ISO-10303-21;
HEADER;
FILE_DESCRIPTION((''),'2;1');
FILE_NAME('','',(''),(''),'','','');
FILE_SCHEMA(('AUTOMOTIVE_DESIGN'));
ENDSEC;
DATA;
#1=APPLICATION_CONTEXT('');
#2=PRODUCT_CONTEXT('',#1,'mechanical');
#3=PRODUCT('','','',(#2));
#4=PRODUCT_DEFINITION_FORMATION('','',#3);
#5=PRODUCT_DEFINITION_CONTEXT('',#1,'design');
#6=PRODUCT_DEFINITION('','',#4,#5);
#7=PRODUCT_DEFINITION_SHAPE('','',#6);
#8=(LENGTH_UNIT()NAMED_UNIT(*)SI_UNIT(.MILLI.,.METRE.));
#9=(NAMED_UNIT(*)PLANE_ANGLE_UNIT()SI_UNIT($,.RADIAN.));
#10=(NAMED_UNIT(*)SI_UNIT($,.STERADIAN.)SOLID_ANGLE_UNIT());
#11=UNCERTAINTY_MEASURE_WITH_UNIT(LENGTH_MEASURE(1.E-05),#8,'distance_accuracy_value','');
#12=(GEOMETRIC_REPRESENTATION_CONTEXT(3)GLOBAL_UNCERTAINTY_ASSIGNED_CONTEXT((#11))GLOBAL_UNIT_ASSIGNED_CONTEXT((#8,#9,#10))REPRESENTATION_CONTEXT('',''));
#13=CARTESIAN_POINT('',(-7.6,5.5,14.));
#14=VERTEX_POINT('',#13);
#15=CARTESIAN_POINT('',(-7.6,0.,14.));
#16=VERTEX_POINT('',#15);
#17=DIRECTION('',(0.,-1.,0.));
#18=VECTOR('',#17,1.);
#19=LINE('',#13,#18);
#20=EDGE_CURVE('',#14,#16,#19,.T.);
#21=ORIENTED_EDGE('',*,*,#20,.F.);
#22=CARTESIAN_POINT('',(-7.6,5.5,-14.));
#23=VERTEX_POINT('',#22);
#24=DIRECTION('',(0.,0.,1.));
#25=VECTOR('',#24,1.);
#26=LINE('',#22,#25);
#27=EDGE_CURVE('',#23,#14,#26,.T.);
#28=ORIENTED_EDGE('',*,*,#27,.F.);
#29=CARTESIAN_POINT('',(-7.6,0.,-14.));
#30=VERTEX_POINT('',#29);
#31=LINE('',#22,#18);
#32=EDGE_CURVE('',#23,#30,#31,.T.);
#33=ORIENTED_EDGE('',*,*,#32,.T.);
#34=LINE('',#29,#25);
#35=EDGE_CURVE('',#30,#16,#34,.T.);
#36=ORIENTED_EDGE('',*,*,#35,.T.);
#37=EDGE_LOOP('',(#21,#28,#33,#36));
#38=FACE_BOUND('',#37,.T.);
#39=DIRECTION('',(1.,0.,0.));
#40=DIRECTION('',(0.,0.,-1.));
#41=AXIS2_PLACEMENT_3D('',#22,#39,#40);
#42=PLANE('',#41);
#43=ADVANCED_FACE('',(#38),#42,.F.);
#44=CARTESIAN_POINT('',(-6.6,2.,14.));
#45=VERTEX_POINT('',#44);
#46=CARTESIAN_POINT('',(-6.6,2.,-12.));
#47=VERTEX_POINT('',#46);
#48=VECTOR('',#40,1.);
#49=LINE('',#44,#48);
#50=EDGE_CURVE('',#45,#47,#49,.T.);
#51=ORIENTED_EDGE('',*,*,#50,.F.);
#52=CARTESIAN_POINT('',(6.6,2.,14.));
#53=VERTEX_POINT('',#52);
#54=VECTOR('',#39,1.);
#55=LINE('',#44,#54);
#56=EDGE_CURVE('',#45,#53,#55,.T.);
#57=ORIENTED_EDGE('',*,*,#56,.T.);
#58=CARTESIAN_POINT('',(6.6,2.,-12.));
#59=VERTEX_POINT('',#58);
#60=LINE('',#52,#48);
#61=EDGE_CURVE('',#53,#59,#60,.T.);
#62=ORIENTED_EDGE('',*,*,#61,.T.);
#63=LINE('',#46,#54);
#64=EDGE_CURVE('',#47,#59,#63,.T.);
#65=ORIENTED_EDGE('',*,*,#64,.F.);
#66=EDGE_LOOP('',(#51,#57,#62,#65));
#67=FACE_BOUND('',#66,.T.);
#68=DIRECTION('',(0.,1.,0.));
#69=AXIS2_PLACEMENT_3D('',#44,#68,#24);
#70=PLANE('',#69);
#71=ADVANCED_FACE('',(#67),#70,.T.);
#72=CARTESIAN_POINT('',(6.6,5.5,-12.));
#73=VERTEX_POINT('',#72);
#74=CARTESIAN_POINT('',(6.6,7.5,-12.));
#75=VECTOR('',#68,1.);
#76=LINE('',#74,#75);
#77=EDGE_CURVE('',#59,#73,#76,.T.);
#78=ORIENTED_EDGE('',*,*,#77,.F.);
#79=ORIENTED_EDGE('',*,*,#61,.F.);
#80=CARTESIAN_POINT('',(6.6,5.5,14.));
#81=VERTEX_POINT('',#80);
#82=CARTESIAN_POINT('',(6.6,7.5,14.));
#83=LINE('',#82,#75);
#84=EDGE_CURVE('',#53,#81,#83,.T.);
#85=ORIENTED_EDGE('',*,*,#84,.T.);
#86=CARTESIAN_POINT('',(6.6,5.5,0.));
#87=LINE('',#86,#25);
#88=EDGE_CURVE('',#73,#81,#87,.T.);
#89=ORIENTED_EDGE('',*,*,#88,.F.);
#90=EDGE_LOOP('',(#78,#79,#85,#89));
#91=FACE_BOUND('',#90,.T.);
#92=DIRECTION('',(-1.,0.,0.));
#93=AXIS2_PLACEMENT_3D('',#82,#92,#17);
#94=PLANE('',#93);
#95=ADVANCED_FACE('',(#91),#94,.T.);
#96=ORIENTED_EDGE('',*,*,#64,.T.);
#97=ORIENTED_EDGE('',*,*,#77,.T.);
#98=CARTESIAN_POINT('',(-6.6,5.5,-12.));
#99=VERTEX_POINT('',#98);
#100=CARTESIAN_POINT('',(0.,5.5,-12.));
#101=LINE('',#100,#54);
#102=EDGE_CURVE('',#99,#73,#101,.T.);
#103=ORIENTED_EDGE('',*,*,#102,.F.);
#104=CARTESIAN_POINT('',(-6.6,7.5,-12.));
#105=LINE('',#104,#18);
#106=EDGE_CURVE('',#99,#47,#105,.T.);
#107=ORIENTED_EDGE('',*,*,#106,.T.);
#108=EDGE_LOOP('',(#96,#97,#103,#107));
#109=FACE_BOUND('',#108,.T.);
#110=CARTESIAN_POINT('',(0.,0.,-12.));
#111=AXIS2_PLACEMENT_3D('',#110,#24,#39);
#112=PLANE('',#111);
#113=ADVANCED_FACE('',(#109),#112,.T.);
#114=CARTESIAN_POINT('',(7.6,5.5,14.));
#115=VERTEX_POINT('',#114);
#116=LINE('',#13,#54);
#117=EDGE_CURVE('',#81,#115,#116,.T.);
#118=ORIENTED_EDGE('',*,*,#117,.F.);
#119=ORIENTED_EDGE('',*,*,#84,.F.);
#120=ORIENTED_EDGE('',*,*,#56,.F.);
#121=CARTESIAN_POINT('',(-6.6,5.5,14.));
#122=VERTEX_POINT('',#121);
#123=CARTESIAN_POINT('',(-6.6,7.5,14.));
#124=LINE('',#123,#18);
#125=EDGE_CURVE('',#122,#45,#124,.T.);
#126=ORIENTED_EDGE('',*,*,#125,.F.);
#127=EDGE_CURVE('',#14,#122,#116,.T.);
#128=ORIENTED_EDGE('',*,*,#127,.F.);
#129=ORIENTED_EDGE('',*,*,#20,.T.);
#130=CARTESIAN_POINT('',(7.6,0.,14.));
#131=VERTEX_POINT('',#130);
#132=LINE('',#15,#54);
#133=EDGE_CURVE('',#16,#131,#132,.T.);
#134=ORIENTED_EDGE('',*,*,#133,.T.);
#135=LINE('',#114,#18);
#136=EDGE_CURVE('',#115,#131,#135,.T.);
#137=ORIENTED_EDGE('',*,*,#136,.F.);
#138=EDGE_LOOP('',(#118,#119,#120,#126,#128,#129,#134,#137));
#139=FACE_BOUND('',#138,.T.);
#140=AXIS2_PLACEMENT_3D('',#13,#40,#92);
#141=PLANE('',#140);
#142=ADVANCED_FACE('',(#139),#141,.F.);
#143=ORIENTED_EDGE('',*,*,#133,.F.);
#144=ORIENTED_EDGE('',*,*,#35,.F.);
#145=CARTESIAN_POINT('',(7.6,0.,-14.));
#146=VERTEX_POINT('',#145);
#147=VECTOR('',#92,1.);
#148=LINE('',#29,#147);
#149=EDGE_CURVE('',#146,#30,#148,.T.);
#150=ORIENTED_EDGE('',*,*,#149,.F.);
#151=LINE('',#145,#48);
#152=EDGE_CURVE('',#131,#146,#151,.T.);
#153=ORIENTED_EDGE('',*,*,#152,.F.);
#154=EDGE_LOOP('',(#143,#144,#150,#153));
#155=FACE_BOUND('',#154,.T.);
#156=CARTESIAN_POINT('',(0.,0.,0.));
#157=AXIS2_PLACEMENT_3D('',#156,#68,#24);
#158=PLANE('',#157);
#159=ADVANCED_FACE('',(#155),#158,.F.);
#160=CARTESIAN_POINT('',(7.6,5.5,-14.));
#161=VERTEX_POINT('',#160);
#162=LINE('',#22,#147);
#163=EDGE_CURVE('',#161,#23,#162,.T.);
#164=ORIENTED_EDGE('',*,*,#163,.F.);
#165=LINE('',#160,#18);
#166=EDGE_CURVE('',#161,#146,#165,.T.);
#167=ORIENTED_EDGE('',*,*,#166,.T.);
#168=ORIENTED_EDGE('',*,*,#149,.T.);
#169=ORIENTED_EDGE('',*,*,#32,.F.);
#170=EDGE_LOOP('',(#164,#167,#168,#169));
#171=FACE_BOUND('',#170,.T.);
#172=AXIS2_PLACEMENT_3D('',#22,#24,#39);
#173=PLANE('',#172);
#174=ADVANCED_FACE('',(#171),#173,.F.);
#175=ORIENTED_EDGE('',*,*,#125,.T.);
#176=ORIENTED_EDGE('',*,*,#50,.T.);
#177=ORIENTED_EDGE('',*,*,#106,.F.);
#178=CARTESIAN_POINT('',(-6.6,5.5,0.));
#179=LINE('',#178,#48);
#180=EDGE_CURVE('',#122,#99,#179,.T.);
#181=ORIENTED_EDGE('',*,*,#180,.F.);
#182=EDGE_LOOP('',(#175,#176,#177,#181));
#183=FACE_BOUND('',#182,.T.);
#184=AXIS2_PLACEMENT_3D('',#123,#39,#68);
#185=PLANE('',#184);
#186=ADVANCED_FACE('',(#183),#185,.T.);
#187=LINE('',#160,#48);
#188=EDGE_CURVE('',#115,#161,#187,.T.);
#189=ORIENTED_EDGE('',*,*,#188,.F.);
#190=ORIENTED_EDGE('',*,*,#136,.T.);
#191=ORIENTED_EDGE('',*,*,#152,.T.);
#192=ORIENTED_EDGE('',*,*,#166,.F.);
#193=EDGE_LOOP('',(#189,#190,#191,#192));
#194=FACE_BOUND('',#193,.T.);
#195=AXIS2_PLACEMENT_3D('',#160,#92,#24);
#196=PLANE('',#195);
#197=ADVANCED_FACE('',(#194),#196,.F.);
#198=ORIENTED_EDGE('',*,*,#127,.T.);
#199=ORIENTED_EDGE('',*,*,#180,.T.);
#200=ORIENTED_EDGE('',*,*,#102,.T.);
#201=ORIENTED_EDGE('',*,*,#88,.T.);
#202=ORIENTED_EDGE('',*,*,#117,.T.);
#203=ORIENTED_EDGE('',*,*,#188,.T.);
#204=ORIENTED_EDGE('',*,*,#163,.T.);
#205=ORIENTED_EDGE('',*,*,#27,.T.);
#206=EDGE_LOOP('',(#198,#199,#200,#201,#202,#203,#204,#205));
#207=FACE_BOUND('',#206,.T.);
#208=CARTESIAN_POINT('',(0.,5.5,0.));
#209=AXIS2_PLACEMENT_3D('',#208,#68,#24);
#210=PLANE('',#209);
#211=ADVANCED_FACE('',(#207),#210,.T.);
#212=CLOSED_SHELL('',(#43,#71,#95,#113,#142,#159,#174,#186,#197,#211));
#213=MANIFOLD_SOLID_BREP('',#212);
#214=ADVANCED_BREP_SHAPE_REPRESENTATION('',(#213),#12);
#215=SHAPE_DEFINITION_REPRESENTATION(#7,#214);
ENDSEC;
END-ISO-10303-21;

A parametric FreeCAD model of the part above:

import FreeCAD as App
import Part
import Sketcher


def add_polygon(sketch, points):
    """Adds a closed chain of lines whose ends are joined by coincident constraints."""
    first, n = sketch.GeometryCount, len(points)
    for a, b in zip(points, points[1:] + points[:1]):
        sketch.addGeometry(Part.LineSegment(App.Vector(*a, 0), App.Vector(*b, 0)), False)
    for i in range(n):
        sketch.addConstraint(Sketcher.Constraint("Coincident", first + i, 2, first + (i + 1) % n, 1))

doc = App.newDocument("Part")
body = doc.addObject("PartDesign::Body", "Body")

sketch1 = doc.addObject("Sketcher::SketchObject", "Sketch")
body.addObject(sketch1)
sketch1.AttachmentSupport = (doc.XZ_Plane, [""])
sketch1.MapMode = "FlatFace"
add_polygon(sketch1, [(-8, -14), (-8, 14), (8, 14), (8, -14)])
sketch1.addConstraint([
    Sketcher.Constraint("Vertical", 0),
    Sketcher.Constraint("Horizontal", 1),
    Sketcher.Constraint("Vertical", 2),
    Sketcher.Constraint("Horizontal", 3),
    Sketcher.Constraint("Symmetric", 0, 2, 2, 2, -1, 1),
    Sketcher.Constraint("DistanceY", 0, 1, 0, 2, 28.0),
    Sketcher.Constraint("DistanceX", 1, 1, 1, 2, 15.2),
])
pad1 = doc.addObject("PartDesign::Pad", "Pad")
body.addObject(pad1)
pad1.Profile = sketch1
pad1.Length = 5.5
pad1.Reversed = True

sketch2 = doc.addObject("Sketcher::SketchObject", "Sketch001")
body.addObject(sketch2)
sketch2.AttachmentSupport = (doc.XY_Plane, [""])
sketch2.MapMode = "FlatFace"
add_polygon(sketch2, [(-7, 8), (-7, 2), (7, 2), (7, 8)])
sketch2.addConstraint([
    Sketcher.Constraint("Vertical", 0),
    Sketcher.Constraint("Horizontal", 1),
    Sketcher.Constraint("Vertical", 2),
    Sketcher.Constraint("Horizontal", 3),
    Sketcher.Constraint("DistanceX", 1, 1, 1, 2, 13.2),
    Sketcher.Constraint("DistanceY", 0, 2, 0, 1, 5.5),
    Sketcher.Constraint("DistanceY", -1, 1, 0, 2, 2.0),
    Sketcher.Constraint("DistanceX", 0, 2, -1, 1, 6.6),
])
pocket1 = doc.addObject("PartDesign::Pocket", "Pocket")
body.addObject(pocket1)
pocket1.Profile = sketch2
pocket1.Type = "TwoLengths"
pocket1.Length = 14
pocket1.Length2 = 12
pocket1.Reversed = True

doc.recompute()
